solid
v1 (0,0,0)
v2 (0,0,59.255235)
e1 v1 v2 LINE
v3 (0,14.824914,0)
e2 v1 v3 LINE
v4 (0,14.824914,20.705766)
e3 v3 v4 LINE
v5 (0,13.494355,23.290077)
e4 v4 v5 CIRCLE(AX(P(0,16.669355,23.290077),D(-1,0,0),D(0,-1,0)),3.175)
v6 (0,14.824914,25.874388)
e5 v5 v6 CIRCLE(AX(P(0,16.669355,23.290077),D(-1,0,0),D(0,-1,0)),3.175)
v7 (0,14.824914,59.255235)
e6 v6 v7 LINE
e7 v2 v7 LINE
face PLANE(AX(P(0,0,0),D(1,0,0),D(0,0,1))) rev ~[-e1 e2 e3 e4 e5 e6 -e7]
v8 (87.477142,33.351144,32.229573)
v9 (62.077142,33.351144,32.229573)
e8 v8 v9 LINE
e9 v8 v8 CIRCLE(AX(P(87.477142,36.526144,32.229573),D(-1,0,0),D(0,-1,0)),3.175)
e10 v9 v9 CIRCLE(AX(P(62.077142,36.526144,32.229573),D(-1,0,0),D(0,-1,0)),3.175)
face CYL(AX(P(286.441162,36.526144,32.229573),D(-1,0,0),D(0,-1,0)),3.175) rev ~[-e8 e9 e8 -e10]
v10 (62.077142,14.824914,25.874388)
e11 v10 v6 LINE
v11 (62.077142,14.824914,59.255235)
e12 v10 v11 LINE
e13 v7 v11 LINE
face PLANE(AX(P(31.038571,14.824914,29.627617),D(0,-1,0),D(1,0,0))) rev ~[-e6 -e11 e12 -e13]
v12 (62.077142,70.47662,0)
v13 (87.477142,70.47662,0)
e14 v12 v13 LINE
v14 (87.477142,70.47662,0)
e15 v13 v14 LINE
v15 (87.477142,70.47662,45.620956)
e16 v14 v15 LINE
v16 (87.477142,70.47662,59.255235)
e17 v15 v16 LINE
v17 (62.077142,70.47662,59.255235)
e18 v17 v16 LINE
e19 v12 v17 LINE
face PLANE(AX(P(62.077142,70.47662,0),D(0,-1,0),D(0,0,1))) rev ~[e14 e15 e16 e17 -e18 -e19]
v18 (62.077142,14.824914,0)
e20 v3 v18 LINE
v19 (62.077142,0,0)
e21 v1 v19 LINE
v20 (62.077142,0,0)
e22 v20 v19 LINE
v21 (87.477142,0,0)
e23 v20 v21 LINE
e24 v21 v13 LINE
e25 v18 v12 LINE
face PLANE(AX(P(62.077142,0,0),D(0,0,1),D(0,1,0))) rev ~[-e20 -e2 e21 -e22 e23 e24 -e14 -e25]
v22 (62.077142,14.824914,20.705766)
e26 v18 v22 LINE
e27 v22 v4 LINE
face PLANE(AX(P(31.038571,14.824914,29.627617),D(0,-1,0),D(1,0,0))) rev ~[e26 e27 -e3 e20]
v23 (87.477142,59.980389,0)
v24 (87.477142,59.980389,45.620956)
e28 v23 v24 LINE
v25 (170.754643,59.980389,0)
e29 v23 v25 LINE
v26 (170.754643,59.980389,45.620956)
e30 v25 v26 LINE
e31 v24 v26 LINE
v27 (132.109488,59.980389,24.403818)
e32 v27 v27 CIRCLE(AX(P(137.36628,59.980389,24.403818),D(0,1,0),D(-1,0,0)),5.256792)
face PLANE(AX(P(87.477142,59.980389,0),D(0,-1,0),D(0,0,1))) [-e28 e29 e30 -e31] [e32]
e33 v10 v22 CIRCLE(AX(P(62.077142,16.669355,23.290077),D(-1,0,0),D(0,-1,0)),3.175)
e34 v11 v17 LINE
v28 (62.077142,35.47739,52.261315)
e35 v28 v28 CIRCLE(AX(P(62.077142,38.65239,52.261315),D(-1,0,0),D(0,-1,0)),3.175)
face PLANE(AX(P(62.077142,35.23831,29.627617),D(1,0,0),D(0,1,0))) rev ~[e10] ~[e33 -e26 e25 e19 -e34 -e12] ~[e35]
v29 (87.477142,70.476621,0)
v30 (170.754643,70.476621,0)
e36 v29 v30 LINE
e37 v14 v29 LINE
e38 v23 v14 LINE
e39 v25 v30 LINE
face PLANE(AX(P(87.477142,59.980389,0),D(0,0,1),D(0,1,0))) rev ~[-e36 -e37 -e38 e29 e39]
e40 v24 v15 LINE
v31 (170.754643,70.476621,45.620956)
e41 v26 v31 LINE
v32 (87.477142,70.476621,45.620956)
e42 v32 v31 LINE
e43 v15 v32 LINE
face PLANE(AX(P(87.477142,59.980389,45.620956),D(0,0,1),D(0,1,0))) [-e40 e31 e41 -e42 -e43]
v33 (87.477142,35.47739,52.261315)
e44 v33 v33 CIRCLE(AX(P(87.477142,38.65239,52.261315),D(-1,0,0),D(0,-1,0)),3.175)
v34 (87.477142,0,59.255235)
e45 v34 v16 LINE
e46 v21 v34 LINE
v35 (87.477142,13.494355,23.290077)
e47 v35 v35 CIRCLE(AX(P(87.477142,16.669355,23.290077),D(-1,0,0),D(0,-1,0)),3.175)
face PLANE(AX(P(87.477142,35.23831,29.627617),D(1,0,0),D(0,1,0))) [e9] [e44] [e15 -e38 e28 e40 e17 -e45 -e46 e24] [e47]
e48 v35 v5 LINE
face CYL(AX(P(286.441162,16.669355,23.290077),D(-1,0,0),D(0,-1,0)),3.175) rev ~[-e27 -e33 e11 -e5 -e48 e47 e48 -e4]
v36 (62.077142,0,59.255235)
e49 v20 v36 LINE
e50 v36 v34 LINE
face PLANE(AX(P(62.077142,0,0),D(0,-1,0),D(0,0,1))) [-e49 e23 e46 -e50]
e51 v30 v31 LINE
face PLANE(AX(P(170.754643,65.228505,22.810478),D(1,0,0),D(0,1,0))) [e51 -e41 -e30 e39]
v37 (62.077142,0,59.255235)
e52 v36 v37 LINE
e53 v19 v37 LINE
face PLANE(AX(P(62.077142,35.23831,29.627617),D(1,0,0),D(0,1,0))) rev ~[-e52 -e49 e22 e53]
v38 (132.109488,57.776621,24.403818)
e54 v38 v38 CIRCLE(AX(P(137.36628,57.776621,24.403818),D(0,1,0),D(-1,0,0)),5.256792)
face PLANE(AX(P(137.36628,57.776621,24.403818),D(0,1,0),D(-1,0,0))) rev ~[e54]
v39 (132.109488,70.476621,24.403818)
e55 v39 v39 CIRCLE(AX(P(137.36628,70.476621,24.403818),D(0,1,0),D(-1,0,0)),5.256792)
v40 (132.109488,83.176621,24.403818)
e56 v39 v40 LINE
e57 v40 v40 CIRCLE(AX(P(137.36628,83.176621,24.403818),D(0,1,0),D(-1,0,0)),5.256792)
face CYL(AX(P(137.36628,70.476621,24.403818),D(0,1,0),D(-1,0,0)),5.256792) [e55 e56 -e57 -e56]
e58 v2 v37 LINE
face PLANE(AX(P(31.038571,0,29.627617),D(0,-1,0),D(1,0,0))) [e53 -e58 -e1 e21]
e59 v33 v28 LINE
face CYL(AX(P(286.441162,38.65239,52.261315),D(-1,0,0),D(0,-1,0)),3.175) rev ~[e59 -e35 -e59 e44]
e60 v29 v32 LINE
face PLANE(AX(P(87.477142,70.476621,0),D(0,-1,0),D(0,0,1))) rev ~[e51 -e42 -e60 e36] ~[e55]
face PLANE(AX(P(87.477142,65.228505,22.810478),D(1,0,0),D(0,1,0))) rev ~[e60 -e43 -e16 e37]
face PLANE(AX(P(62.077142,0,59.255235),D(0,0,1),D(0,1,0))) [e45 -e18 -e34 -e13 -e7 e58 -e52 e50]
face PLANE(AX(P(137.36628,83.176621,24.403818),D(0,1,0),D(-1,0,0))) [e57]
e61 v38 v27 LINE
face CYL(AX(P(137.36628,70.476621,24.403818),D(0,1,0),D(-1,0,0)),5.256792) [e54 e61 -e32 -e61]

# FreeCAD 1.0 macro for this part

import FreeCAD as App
import Part
import Sketcher
from FreeCAD import Vector
Q = App.Units.Quantity


def add_polygon(sketch, points):
    """Adds a closed chain of lines whose ends are joined by coincident constraints."""
    first, n = sketch.GeometryCount, len(points)
    for a, b in zip(points, points[1:] + points[:1]):
        sketch.addGeometry(Part.LineSegment(App.Vector(*a, 0), App.Vector(*b, 0)), False)
    for i in range(n):
        sketch.addConstraint(Sketcher.Constraint("Coincident", first + i, 2, first + (i + 1) % n, 1))

doc = App.newDocument("Part")
params = doc.addObject("Spreadsheet::Sheet", "Params")
for row, (alias, value) in enumerate([
    ("pad1_length", "14.824914 mm"),
    ("pad2_length", "1 in"),
    ("pad3_length", "83.277501 mm"),
    ("pad4_length", "1 in"),
    ("sketch5_diameter", "0.25 in"),
    ("hole_diameter", "0.25 in"),
], start=1):
    params.set(f"A{row}", alias)
    params.set(f"B{row}", "=" + value)
    params.setAlias(f"B{row}", alias)

body = doc.addObject("PartDesign::Body", "Body")

# Sketch on XZ plane
sketch1 = doc.addObject("Sketcher::SketchObject", "Sketch")
body.addObject(sketch1)
sketch1.AttachmentSupport = (doc.XZ_Plane, [""])
sketch1.MapMode = "FlatFace"
add_polygon(sketch1, [(0, 59), (0, 0), (62, 0), (62, 59)])  # lines 0-3
sketch1.addConstraint(Sketcher.Constraint("Vertical", 0))
sketch1.addConstraint(Sketcher.Constraint("Horizontal", 1))
sketch1.addConstraint(Sketcher.Constraint("Vertical", 2))
sketch1.addConstraint(Sketcher.Constraint("Horizontal", 3))
sketch1.addConstraint(Sketcher.Constraint("Coincident", 0, 2, -1, 1))
sketch1.addConstraint(Sketcher.Constraint("DistanceX", 1, 1, 1, 2, Q("62.077142 mm")))
sketch1.addConstraint(Sketcher.Constraint("DistanceY", 0, 2, 0, 1, Q("59.255235 mm")))
pad1 = doc.addObject("PartDesign::Pad", "Pad")
body.addObject(pad1)
pad1.Profile = sketch1
pad1.setExpression("Length", "Params.pad1_length")
pad1.Reversed = True

# Sketch on YZ plane
sketch2 = doc.addObject("Sketcher::SketchObject", "Sketch001")
body.addObject(sketch2)
sketch2.AttachmentSupport = (doc.YZ_Plane, [""])
sketch2.MapMode = "FlatFace"
sketch2.AttachmentOffset = App.Placement(Vector(0, 0, 62.077142), App.Rotation())
add_polygon(sketch2, [(0, 59), (0, 0), (70, 0), (70, 59)])  # lines 0-3
sketch2.addConstraint(Sketcher.Constraint("Vertical", 0))
sketch2.addConstraint(Sketcher.Constraint("Horizontal", 1))
sketch2.addConstraint(Sketcher.Constraint("Vertical", 2))
sketch2.addConstraint(Sketcher.Constraint("Horizontal", 3))
sketch2.addConstraint(Sketcher.Constraint("Coincident", 0, 2, -1, 1))
sketch2.addConstraint(Sketcher.Constraint("DistanceX", 1, 1, 1, 2, Q("70.476621 mm")))
sketch2.addConstraint(Sketcher.Constraint("DistanceY", 0, 2, 0, 1, Q("59.255235 mm")))
pad2 = doc.addObject("PartDesign::Pad", "Pad001")
body.addObject(pad2)
pad2.Profile = sketch2
pad2.setExpression("Length", "Params.pad2_length")

# Sketch on YZ plane
sketch3 = doc.addObject("Sketcher::SketchObject", "Sketch002")
body.addObject(sketch3)
sketch3.AttachmentSupport = (doc.YZ_Plane, [""])
sketch3.MapMode = "FlatFace"
sketch3.AttachmentOffset = App.Placement(Vector(0, 0, 87.477142), App.Rotation())
add_polygon(sketch3, [(60, 46), (60, 0), (70, 0), (70, 46)])  # lines 0-3
sketch3.addConstraint(Sketcher.Constraint("Vertical", 0))
sketch3.addConstraint(Sketcher.Constraint("Horizontal", 1))
sketch3.addConstraint(Sketcher.Constraint("Vertical", 2))
sketch3.addConstraint(Sketcher.Constraint("Horizontal", 3))
sketch3.addConstraint(Sketcher.Constraint("PointOnObject", 0, 2, -1))
sketch3.addConstraint(Sketcher.Constraint("DistanceX", 1, 1, 1, 2, Q("10.496232 mm")))
sketch3.addConstraint(Sketcher.Constraint("DistanceY", 0, 2, 0, 1, Q("45.620956 mm")))
sketch3.addConstraint(Sketcher.Constraint("DistanceX", -1, 1, 0, 2, Q("59.980389 mm")))
pad3 = doc.addObject("PartDesign::Pad", "Pad002")
body.addObject(pad3)
pad3.Profile = sketch3
pad3.setExpression("Length", "Params.pad3_length")

# Sketch on XZ plane
sketch4 = doc.addObject("Sketcher::SketchObject", "Sketch003")
body.addObject(sketch4)
sketch4.AttachmentSupport = (doc.XZ_Plane, [""])
sketch4.MapMode = "FlatFace"
sketch4.AttachmentOffset = App.Placement(Vector(0, 0, -70.476621), App.Rotation())
sketch4.addGeometry(Part.Circle(Vector(137, 24, 0), Vector(0, 0, 1), 5), False)
sketch4.addConstraint(Sketcher.Constraint("Diameter", 0, Q("10.513584 mm")))
sketch4.addConstraint(Sketcher.Constraint("DistanceX", -1, 1, 0, 3, Q("137.36628 mm")))
sketch4.addConstraint(Sketcher.Constraint("DistanceY", -1, 1, 0, 3, Q("24.403818 mm")))
pad4 = doc.addObject("PartDesign::Pad", "Pad003")
body.addObject(pad4)
pad4.Profile = sketch4
pad4.setExpression("Length", "Params.pad4_length")
pad4.Midplane = True

# Sketch on YZ plane
sketch5 = doc.addObject("Sketcher::SketchObject", "Sketch004")
body.addObject(sketch5)
sketch5.AttachmentSupport = (doc.YZ_Plane, [""])
sketch5.MapMode = "FlatFace"
sketch5.AttachmentOffset = App.Placement(Vector(0, 0, 87.477142), App.Rotation())
sketch5.addGeometry(Part.Circle(Vector(16.7, 23.3, 0), Vector(0, 0, 1), 3.2), False)
sketch5.addGeometry(Part.Circle(Vector(36.5, 32.2, 0), Vector(0, 0, 1), 3.2), False)
sketch5.addGeometry(Part.Circle(Vector(38.7, 52.3, 0), Vector(0, 0, 1), 3.2), False)
sketch5.addConstraint(Sketcher.Constraint("Equal", 0, 1))
sketch5.addConstraint(Sketcher.Constraint("Equal", 1, 2))
sketch5.addConstraint(Sketcher.Constraint("Diameter", 0, Q("0.25 in")))
sketch5.addConstraint(Sketcher.Constraint("DistanceY", 0, 3, 2, 3, Q("1.1405999 in")))
sketch5.addConstraint(Sketcher.Constraint("DistanceX", -1, 1, 2, 3, Q("38.65239 mm")))
sketch5.addConstraint(Sketcher.Constraint("DistanceX", 0, 3, 1, 3, Q("19.856789 mm")))
sketch5.addConstraint(Sketcher.Constraint("DistanceX", -1, 1, 0, 3, Q("16.669355 mm")))
sketch5.addConstraint(Sketcher.Constraint("DistanceY", -1, 1, 0, 3, Q("23.290077 mm")))
sketch5.addConstraint(Sketcher.Constraint("DistanceY", -1, 1, 1, 3, Q("32.229573 mm")))
sketch5.setExpression("Constraints[2]", "Params.sketch5_diameter")
doc.recompute()
hole = doc.addObject("PartDesign::Hole", "Hole")
body.addObject(hole)
hole.Profile = sketch5
hole.ThreadType = "None"
hole.setExpression("Diameter", "Params.hole_diameter")
hole.DepthType = "ThroughAll"

doc.recompute()
